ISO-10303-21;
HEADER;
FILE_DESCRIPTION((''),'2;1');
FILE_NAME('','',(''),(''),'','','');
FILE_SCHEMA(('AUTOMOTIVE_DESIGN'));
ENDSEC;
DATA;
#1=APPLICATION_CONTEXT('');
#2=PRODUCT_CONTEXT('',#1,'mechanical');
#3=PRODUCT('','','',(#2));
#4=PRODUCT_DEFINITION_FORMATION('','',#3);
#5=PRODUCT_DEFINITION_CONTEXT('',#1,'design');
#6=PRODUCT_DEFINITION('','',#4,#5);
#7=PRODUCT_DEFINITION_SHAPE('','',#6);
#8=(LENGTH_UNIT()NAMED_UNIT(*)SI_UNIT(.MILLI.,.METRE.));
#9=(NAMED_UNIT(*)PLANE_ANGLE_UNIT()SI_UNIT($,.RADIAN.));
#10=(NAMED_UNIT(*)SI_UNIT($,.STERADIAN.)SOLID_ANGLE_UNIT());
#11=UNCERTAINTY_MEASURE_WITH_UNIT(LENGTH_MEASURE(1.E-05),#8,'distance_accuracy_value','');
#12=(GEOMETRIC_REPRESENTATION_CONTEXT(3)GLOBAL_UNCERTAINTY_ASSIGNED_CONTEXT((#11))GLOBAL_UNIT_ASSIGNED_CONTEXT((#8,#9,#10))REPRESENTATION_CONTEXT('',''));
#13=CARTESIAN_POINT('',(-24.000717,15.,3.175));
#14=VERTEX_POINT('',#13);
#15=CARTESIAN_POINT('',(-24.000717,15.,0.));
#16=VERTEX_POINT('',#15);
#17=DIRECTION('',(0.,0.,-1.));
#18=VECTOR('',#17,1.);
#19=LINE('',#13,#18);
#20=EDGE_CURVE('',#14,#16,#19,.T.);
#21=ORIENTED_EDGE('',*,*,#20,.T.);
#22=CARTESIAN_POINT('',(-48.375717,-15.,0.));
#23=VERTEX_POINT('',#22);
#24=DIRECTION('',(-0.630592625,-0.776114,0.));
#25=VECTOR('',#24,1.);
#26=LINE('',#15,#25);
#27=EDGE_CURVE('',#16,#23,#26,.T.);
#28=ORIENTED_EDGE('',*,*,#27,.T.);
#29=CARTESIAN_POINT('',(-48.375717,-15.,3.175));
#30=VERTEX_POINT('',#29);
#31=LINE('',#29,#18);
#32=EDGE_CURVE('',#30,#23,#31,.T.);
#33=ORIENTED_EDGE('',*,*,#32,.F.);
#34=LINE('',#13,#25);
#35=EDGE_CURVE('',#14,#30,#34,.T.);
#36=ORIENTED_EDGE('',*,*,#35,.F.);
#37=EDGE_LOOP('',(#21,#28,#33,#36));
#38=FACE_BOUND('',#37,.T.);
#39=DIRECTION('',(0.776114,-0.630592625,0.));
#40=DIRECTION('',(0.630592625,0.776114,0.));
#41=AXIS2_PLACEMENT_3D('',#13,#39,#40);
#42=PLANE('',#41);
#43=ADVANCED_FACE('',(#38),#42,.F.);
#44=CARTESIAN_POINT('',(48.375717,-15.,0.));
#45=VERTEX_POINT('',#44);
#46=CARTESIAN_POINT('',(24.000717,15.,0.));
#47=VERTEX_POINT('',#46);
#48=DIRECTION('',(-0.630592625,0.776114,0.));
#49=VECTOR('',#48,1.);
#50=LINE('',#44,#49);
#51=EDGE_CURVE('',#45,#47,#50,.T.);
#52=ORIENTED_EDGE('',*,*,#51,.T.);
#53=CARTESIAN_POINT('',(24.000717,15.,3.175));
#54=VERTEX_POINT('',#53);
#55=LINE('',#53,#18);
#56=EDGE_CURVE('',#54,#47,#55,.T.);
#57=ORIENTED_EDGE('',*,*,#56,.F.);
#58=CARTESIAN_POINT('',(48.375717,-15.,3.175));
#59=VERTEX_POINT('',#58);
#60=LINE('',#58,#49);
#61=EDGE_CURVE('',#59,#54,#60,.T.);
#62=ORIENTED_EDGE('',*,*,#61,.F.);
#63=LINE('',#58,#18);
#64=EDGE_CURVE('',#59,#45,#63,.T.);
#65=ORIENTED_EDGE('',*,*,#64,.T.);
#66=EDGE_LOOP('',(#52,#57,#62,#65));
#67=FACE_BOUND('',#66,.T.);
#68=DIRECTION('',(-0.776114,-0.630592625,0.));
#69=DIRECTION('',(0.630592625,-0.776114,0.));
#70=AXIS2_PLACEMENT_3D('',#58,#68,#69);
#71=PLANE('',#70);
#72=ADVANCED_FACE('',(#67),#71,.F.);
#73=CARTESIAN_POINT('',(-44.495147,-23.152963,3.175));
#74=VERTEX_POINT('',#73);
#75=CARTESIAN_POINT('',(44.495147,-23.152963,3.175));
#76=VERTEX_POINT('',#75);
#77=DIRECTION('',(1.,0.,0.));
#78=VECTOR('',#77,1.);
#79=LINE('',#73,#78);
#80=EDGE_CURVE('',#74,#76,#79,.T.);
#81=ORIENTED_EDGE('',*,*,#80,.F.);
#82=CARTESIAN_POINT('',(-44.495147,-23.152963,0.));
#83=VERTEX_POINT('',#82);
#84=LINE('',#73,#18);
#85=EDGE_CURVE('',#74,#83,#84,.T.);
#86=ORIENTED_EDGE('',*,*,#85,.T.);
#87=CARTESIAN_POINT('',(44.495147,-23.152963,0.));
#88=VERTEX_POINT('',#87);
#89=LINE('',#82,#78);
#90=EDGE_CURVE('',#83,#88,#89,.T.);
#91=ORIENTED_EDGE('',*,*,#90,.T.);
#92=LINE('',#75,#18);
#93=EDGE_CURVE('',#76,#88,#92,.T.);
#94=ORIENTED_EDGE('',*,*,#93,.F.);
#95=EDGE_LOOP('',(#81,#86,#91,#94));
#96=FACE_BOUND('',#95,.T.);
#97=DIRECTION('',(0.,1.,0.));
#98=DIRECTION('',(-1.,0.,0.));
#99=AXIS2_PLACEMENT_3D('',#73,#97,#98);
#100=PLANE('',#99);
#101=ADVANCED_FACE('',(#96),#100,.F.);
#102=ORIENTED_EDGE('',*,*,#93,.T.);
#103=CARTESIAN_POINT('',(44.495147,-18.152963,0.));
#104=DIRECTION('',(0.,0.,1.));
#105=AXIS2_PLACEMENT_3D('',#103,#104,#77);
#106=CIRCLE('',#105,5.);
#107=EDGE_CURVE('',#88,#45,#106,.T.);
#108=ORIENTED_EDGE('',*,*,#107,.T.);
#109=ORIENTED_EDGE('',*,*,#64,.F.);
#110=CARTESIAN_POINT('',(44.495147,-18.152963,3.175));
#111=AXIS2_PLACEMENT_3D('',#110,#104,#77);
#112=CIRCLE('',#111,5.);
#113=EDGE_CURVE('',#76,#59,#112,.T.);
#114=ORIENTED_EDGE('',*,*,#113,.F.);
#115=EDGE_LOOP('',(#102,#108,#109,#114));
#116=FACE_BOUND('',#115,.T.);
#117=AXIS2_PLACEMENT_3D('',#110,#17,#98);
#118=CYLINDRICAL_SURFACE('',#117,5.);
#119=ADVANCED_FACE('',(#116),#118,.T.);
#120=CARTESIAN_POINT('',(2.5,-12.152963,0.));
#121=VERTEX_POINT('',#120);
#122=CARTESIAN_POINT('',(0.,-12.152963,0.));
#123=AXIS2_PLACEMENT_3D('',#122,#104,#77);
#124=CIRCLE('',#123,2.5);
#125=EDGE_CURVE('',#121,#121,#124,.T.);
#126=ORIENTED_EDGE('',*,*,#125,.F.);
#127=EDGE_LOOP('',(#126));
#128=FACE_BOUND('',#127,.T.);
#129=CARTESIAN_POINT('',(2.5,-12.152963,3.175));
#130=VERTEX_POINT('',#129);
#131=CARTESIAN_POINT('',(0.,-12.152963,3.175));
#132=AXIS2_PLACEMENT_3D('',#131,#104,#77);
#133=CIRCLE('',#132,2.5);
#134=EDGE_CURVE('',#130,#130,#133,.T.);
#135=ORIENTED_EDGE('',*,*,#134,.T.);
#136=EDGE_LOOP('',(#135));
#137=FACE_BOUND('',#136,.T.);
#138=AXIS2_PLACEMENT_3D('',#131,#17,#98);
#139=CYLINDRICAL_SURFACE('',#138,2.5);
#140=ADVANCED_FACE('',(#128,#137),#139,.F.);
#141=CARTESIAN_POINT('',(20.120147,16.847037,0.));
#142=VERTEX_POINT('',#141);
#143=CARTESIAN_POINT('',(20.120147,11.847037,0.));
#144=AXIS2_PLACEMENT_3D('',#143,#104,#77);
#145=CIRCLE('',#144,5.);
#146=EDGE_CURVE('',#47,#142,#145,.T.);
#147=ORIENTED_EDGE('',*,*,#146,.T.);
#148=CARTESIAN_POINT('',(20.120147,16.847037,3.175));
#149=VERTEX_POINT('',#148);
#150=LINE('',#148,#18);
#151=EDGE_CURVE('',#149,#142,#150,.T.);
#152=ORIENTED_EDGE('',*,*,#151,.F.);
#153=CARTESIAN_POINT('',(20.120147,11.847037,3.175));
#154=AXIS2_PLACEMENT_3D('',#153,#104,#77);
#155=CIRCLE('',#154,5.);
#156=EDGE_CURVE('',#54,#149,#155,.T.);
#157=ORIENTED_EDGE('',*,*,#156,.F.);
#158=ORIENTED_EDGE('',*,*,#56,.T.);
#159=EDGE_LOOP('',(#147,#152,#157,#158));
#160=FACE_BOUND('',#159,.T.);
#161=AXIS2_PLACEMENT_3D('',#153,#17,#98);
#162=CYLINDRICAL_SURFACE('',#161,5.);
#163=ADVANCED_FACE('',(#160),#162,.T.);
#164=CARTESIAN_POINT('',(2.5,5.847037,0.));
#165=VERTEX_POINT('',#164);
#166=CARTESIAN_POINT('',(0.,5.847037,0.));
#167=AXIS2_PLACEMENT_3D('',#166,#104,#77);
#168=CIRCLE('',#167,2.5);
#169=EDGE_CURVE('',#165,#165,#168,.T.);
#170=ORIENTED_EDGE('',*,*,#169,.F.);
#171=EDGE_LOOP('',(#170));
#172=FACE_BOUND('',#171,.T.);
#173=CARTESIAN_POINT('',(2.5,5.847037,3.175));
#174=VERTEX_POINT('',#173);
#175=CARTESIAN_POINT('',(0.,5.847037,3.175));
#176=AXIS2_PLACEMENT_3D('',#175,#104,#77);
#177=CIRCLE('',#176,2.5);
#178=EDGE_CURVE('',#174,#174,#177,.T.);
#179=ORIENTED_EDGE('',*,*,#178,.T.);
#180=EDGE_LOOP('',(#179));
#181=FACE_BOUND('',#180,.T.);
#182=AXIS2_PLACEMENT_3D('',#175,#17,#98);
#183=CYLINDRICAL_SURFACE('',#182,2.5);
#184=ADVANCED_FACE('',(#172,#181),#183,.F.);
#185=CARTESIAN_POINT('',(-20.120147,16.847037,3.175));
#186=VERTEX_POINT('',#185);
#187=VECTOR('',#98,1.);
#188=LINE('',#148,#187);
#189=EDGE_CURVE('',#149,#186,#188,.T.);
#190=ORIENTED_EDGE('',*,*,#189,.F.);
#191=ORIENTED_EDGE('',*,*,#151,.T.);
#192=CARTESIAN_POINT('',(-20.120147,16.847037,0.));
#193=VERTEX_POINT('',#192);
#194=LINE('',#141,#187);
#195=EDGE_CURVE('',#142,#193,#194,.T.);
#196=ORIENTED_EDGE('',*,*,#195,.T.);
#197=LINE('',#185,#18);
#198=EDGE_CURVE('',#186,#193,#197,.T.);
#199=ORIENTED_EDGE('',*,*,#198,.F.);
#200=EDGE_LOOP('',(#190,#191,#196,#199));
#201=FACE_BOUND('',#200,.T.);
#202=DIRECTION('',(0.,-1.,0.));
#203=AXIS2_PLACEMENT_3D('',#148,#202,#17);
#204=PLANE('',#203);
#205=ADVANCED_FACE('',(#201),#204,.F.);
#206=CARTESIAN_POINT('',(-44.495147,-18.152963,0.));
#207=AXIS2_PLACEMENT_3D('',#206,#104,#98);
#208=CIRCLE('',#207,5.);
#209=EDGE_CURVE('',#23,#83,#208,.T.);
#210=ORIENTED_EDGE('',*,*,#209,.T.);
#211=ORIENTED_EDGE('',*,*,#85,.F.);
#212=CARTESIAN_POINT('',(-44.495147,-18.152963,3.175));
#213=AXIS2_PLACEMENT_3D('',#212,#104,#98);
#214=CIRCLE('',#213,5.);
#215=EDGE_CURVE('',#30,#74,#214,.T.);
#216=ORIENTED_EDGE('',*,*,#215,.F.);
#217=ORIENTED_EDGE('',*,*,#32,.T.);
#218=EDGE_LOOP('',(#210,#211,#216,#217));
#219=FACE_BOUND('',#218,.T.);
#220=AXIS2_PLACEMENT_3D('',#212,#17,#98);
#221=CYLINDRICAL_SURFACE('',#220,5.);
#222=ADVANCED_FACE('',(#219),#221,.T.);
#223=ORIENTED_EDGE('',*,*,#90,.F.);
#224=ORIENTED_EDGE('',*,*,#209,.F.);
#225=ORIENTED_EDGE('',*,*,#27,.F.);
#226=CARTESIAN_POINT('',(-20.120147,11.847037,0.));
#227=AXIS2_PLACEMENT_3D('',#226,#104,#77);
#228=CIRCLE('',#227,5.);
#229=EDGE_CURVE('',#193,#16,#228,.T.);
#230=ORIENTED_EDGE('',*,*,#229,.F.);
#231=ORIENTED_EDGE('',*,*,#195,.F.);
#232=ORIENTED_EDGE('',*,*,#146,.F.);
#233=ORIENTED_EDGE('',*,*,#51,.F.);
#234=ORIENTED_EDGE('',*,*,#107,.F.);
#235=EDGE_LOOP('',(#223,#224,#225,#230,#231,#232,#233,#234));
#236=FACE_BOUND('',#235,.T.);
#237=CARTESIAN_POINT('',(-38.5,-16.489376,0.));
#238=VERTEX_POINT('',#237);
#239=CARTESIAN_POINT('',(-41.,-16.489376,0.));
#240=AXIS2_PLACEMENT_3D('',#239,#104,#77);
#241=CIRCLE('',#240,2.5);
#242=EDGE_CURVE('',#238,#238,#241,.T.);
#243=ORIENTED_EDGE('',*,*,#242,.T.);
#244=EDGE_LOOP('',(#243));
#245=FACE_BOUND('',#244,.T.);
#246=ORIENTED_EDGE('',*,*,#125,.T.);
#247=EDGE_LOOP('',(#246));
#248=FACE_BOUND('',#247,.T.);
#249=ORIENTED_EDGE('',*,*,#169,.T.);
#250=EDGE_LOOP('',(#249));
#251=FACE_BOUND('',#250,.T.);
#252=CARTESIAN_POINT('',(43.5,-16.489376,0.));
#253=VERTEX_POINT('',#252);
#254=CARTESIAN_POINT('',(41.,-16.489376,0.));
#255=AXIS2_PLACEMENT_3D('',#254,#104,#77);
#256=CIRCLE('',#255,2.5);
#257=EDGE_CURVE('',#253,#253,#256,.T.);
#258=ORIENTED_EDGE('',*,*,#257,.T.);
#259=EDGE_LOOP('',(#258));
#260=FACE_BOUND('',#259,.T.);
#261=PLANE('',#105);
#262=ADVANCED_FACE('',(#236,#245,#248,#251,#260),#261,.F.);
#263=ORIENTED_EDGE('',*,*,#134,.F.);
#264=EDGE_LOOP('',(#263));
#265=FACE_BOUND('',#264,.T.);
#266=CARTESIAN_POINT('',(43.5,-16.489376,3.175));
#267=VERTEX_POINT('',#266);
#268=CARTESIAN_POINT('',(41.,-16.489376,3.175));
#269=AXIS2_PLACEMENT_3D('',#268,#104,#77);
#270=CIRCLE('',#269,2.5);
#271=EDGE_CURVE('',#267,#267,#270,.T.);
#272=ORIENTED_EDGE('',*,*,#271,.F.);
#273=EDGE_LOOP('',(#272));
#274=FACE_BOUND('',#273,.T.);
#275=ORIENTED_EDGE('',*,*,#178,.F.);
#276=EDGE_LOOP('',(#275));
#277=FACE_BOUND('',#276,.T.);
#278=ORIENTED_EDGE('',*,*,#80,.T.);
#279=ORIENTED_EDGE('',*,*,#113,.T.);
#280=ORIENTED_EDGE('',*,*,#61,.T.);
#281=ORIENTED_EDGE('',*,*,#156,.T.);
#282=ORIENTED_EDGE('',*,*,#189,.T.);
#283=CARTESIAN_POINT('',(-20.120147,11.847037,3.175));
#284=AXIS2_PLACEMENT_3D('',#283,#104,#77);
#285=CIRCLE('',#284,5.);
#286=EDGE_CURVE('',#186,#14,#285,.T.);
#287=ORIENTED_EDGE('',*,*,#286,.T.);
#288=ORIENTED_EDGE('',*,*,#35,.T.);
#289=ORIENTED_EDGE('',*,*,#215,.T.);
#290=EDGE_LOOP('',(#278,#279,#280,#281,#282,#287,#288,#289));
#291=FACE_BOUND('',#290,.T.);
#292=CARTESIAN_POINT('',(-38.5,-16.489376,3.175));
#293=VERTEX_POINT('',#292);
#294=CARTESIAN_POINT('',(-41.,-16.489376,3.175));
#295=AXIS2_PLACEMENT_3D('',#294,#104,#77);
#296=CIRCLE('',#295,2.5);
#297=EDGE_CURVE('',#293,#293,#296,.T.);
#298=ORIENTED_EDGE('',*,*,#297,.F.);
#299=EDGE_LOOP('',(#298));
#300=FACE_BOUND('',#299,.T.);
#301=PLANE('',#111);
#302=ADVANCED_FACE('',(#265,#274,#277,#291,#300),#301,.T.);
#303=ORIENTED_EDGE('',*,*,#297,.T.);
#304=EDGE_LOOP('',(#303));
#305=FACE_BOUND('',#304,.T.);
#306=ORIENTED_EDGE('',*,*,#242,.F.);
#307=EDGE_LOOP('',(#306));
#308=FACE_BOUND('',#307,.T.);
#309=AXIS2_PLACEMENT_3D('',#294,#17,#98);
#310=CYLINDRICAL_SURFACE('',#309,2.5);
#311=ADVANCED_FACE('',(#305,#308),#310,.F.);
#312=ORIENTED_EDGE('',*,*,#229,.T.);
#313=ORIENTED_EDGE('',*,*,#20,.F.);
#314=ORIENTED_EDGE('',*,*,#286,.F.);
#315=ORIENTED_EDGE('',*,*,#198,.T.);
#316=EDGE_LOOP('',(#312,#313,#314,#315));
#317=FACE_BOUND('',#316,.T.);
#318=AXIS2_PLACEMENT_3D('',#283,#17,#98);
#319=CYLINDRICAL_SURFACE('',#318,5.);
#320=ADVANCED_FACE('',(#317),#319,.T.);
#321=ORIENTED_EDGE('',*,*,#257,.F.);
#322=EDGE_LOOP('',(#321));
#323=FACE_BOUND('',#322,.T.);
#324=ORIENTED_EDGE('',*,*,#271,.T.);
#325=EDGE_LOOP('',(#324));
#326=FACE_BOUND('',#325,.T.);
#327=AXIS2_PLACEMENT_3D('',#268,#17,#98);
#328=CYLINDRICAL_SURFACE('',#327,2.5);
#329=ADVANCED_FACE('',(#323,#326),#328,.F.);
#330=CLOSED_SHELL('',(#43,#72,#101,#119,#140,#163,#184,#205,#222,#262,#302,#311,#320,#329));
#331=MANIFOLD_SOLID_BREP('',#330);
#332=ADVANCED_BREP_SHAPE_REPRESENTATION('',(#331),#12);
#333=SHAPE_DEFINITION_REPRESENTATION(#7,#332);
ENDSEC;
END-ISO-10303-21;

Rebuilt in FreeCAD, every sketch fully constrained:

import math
import FreeCAD as App
import Part
import Sketcher

V = App.Vector
Q = App.Units.Quantity

doc = App.newDocument("Part")
body = doc.addObject("PartDesign::Body", "Body")

sketch1 = doc.addObject("Sketcher::SketchObject", "Sketch")
body.addObject(sketch1)
sketch1.AttachmentSupport = (doc.XY_Plane, [""])
sketch1.MapMode = "FlatFace"
sketch1.addGeometry([
    Part.LineSegment(V(-44.5, -23.2, 0), V(44.5, -23.2, 0)),
    Part.ArcOfCircle(Part.Circle(V(44.5, -18.2, 0), V(0, 0, 1), 5), math.radians(-90), math.radians(39)),
    Part.LineSegment(V(48.4, -15, 0), V(24, 15, 0)),
    Part.ArcOfCircle(Part.Circle(V(20.1, 11.8, 0), V(0, 0, 1), 5), math.radians(39), math.radians(90)),
    Part.LineSegment(V(20.1, 16.8, 0), V(-20.1, 16.8, 0)),
    Part.ArcOfCircle(Part.Circle(V(-20.1, 11.8, 0), V(0, 0, 1), 5), math.radians(90), math.radians(141)),
    Part.LineSegment(V(-24, 15, 0), V(-48.4, -15, 0)),
    Part.ArcOfCircle(Part.Circle(V(-44.5, -18.2, 0), V(0, 0, 1), 5), math.radians(141), math.radians(270)),
    Part.Circle(V(-41, -16.5, 0), V(0, 0, 1), 2.5),
    Part.Circle(V(41, -16.5, 0), V(0, 0, 1), 2.5),
    Part.Circle(V(0, -12.2, 0), V(0, 0, 1), 2.5),
    Part.Circle(V(0, 5.8, 0), V(0, 0, 1), 2.5),
], False)
sketch1.addConstraint([
    Sketcher.Constraint("Tangent", 0, 2, 1, 1),
    Sketcher.Constraint("Tangent", 1, 2, 2, 1),
    Sketcher.Constraint("Tangent", 2, 2, 3, 1),
    Sketcher.Constraint("Tangent", 3, 2, 4, 1),
    Sketcher.Constraint("Tangent", 4, 2, 5, 1),
    Sketcher.Constraint("Tangent", 5, 2, 6, 1),
    Sketcher.Constraint("Tangent", 6, 2, 7, 1),
    Sketcher.Constraint("Tangent", 7, 2, 0, 1),
    Sketcher.Constraint("Horizontal", 0),
    Sketcher.Constraint("Horizontal", 4),
    Sketcher.Constraint("Equal", 1, 3),
    Sketcher.Constraint("Equal", 3, 5),
    Sketcher.Constraint("Equal", 5, 7),
    Sketcher.Constraint("Equal", 8, 9),
    Sketcher.Constraint("Equal", 9, 10),
    Sketcher.Constraint("Equal", 10, 11),
    Sketcher.Constraint("Symmetric", 8, 3, 9, 3, -2),
    Sketcher.Constraint("Symmetric", 2, 2, 5, 2, -2),
    Sketcher.Constraint("PointOnObject", 10, 3, -2),
    Sketcher.Constraint("PointOnObject", 11, 3, -2),
    Sketcher.Constraint("Diameter", 8, Q("5 mm")),
    Sketcher.Constraint("Radius", 1, Q("5 mm")),
    Sketcher.Constraint("DistanceX", 8, 3, -1, 1, Q("41 mm")),
    Sketcher.Constraint("DistanceY", 1, 2, -1, 1, Q("15 mm")),
    Sketcher.Constraint("DistanceY", -1, 1, 2, 2, Q("15 mm")),
    Sketcher.Constraint("DistanceY", 10, 3, 3, 3, Q("24 mm")),
    Sketcher.Constraint("DistanceY", 10, 3, 11, 3, Q("18 mm")),
    Sketcher.Constraint("DistanceX", 3, 3, 1, 3, Q("24.375 mm")),
    Sketcher.Constraint("DistanceX", 0, 1, 0, 2, Q("88.990295 mm")),
    Sketcher.Constraint("DistanceY", 8, 3, -1, 1, Q("16.489376 mm")),
])
pad1 = doc.addObject("PartDesign::Pad", "Pad")
body.addObject(pad1)
pad1.Profile = sketch1
pad1.Length = 3.175

doc.recompute()
